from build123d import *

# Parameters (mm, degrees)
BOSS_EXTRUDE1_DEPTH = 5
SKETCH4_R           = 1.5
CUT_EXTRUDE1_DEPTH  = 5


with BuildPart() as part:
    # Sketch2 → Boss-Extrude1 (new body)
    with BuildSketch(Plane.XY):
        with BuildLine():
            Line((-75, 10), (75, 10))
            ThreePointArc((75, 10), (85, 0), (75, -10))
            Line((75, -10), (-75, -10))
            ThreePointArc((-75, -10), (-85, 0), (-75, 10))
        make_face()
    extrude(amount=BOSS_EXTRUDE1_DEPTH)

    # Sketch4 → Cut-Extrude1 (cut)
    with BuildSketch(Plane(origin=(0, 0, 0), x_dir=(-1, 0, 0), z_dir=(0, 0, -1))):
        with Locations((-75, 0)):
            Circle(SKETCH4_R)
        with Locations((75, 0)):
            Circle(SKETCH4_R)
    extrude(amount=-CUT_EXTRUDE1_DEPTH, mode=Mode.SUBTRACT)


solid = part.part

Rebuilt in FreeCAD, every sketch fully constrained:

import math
import FreeCAD as App
import Part
import Sketcher

V = App.Vector

doc = App.newDocument("Part")
body = doc.addObject("PartDesign::Body", "Body")

# Sketch on XY plane
sketch1 = body.newObject("Sketcher::SketchObject", "Sketch")
sketch1.AttachmentSupport = (doc.getObject("XY_Plane"), [""])
sketch1.MapMode = "FlatFace"
sketch1.addGeometry(Part.LineSegment(V(75, 10, 0), V(-75, 10, 0)), False)
sketch1.addGeometry(Part.ArcOfCircle(Part.Circle(V(-75, 0, 0), V(0, 0, 1), 10), math.radians(90), math.radians(270)), False)
sketch1.addGeometry(Part.LineSegment(V(-75, -10, 0), V(75, -10, 0)), False)
sketch1.addGeometry(Part.ArcOfCircle(Part.Circle(V(75, 0, 0), V(0, 0, 1), 10), math.radians(-90), math.radians(90)), False)
sketch1.addConstraint(Sketcher.Constraint("Tangent", 0, 2, 1, 1))
sketch1.addConstraint(Sketcher.Constraint("Tangent", 1, 2, 2, 1))
sketch1.addConstraint(Sketcher.Constraint("Tangent", 2, 2, 3, 1))
sketch1.addConstraint(Sketcher.Constraint("Tangent", 3, 2, 0, 1))
sketch1.addConstraint(Sketcher.Constraint("Horizontal", 0))
sketch1.addConstraint(Sketcher.Constraint("Horizontal", 2))
sketch1.addConstraint(Sketcher.Constraint("Symmetric", 1, 3, 3, 3, -1, 1))
sketch1.addConstraint(Sketcher.Constraint("Radius", 1, 10.0))
sketch1.addConstraint(Sketcher.Constraint("DistanceX", 0, 2, 0, 1, 150.0))
pad1 = body.newObject("PartDesign::Pad", "Pad")
pad1.Profile = sketch1
pad1.Length = 5

# Sketch on XY plane
sketch2 = body.newObject("Sketcher::SketchObject", "Sketch001")
sketch2.AttachmentSupport = (doc.getObject("XY_Plane"), [""])
sketch2.MapMode = "FlatFace"
sketch2.addGeometry(Part.Circle(V(75, 0, 0), V(0, 0, 1), 1.5), False)
sketch2.addGeometry(Part.Circle(V(-75, 0, 0), V(0, 0, 1), 1.5), False)
sketch2.addConstraint(Sketcher.Constraint("Equal", 0, 1))
sketch2.addConstraint(Sketcher.Constraint("Symmetric", 0, 3, 1, 3, -1, 1))
sketch2.addConstraint(Sketcher.Constraint("PointOnObject", 0, 3, -1))
sketch2.addConstraint(Sketcher.Constraint("Diameter", 0, 3.0))
sketch2.addConstraint(Sketcher.Constraint("DistanceX", -1, 1, 0, 3, 75.0))
pocket1 = body.newObject("PartDesign::Pocket", "Pocket")
pocket1.Profile = sketch2
pocket1.Length = 5
pocket1.Reversed = True

doc.recompute()
